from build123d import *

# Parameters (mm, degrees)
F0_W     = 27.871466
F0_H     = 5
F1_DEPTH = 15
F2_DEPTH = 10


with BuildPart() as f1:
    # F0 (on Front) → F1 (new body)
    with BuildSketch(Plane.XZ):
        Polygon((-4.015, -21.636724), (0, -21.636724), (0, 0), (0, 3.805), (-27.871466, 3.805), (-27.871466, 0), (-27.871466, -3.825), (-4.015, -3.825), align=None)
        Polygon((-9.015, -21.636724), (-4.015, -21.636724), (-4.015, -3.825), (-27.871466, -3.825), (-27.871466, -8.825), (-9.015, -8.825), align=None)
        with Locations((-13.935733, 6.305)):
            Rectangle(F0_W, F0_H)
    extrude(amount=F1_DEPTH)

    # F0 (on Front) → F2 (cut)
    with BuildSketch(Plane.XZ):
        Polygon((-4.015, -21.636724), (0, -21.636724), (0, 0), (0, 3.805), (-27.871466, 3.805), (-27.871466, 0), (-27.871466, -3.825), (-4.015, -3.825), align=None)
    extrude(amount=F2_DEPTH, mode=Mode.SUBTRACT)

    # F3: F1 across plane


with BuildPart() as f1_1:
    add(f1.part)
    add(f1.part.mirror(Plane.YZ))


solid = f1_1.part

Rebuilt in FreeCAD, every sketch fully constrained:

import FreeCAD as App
import Part
import Sketcher
from FreeCAD import Vector
Q = App.Units.Quantity

doc = App.newDocument("Part")
body = doc.addObject("PartDesign::Body", "Body")

sketch1 = body.newObject("Sketcher::SketchObject", "Sketch")
sketch1.AttachmentSupport = (doc.getObject("XZ_Plane"), [""])
sketch1.MapMode = "FlatFace"
sketch1.addGeometry(Part.LineSegment(Vector(0, -22, 0), Vector(0, 9, 0)), False)
sketch1.addGeometry(Part.LineSegment(Vector(0, 9, 0), Vector(-28, 9, 0)), False)
sketch1.addGeometry(Part.LineSegment(Vector(-28, 9, 0), Vector(-28, -9, 0)), False)
sketch1.addGeometry(Part.LineSegment(Vector(-28, -9, 0), Vector(-9, -9, 0)), False)
sketch1.addGeometry(Part.LineSegment(Vector(-9, -9, 0), Vector(-9, -22, 0)), False)
sketch1.addGeometry(Part.LineSegment(Vector(-9, -22, 0), Vector(0, -22, 0)), False)
sketch1.addConstraint(Sketcher.Constraint("Coincident", 0, 2, 1, 1))
sketch1.addConstraint(Sketcher.Constraint("Coincident", 1, 2, 2, 1))
sketch1.addConstraint(Sketcher.Constraint("Coincident", 2, 2, 3, 1))
sketch1.addConstraint(Sketcher.Constraint("Coincident", 3, 2, 4, 1))
sketch1.addConstraint(Sketcher.Constraint("Coincident", 4, 2, 5, 1))
sketch1.addConstraint(Sketcher.Constraint("Coincident", 5, 2, 0, 1))
sketch1.addConstraint(Sketcher.Constraint("Vertical", 0))
sketch1.addConstraint(Sketcher.Constraint("Horizontal", 1))
sketch1.addConstraint(Sketcher.Constraint("Vertical", 2))
sketch1.addConstraint(Sketcher.Constraint("Horizontal", 3))
sketch1.addConstraint(Sketcher.Constraint("Vertical", 4))
sketch1.addConstraint(Sketcher.Constraint("Horizontal", 5))
sketch1.addConstraint(Sketcher.Constraint("PointOnObject", 0, 2, -2))
sketch1.addConstraint(Sketcher.Constraint("DistanceY", 2, 2, 2, 1, Q("17.63 mm")))
sketch1.addConstraint(Sketcher.Constraint("DistanceX", 5, 1, 5, 2, Q("9.015 mm")))
sketch1.addConstraint(Sketcher.Constraint("DistanceY", -1, 1, 0, 2, Q("8.805 mm")))
sketch1.addConstraint(Sketcher.Constraint("DistanceX", 1, 2, 1, 1, Q("27.871466 mm")))
sketch1.addConstraint(Sketcher.Constraint("DistanceY", 0, 1, 0, 2, Q("30.441724 mm")))
pad1 = body.newObject("PartDesign::Pad", "Pad")
pad1.Profile = sketch1
pad1.Length = 15

sketch2 = body.newObject("Sketcher::SketchObject", "Sketch001")
sketch2.AttachmentSupport = (doc.getObject("XZ_Plane"), [""])
sketch2.MapMode = "FlatFace"
sketch2.addGeometry(Part.LineSegment(Vector(-4, -21.6, 0), Vector(0, -21.6, 0)), False)
sketch2.addGeometry(Part.LineSegment(Vector(0, -21.6, 0), Vector(0, 3.8, 0)), False)
sketch2.addGeometry(Part.LineSegment(Vector(0, 3.8, 0), Vector(-27.9, 3.8, 0)), False)
sketch2.addGeometry(Part.LineSegment(Vector(-27.9, 3.8, 0), Vector(-27.9, -3.8, 0)), False)
sketch2.addGeometry(Part.LineSegment(Vector(-27.9, -3.8, 0), Vector(-4, -3.8, 0)), False)
sketch2.addGeometry(Part.LineSegment(Vector(-4, -3.8, 0), Vector(-4, -21.6, 0)), False)
sketch2.addConstraint(Sketcher.Constraint("Coincident", 0, 2, 1, 1))
sketch2.addConstraint(Sketcher.Constraint("Coincident", 1, 2, 2, 1))
sketch2.addConstraint(Sketcher.Constraint("Coincident", 2, 2, 3, 1))
sketch2.addConstraint(Sketcher.Constraint("Coincident", 3, 2, 4, 1))
sketch2.addConstraint(Sketcher.Constraint("Coincident", 4, 2, 5, 1))
sketch2.addConstraint(Sketcher.Constraint("Coincident", 5, 2, 0, 1))
sketch2.addConstraint(Sketcher.Constraint("Horizontal", 0))
sketch2.addConstraint(Sketcher.Constraint("Vertical", 1))
sketch2.addConstraint(Sketcher.Constraint("Horizontal", 2))
sketch2.addConstraint(Sketcher.Constraint("Vertical", 3))
sketch2.addConstraint(Sketcher.Constraint("Horizontal", 4))
sketch2.addConstraint(Sketcher.Constraint("Vertical", 5))
sketch2.addConstraint(Sketcher.Constraint("PointOnObject", 0, 2, -2))
sketch2.addConstraint(Sketcher.Constraint("DistanceY", 3, 2, 3, 1, Q("7.63 mm")))
sketch2.addConstraint(Sketcher.Constraint("DistanceX", 0, 1, 0, 2, Q("4.015 mm")))
sketch2.addConstraint(Sketcher.Constraint("DistanceY", -1, 1, 1, 2, Q("3.805 mm")))
sketch2.addConstraint(Sketcher.Constraint("DistanceX", 2, 2, 2, 1, Q("27.871466 mm")))
sketch2.addConstraint(Sketcher.Constraint("DistanceY", 1, 1, 1, 2, Q("25.441724 mm")))
pocket1 = body.newObject("PartDesign::Pocket", "Pocket")
pocket1.Profile = sketch2
pocket1.Length = 10
pocket1.Reversed = True
body2 = doc.addObject("PartDesign::Body", "Body001")
doc.recompute()

body2.BaseFeature = body
doc.recompute()

mirroring = doc.addObject("Part::Mirroring", "Mirroring")
mirroring.Source = body
mirroring.Base = Vector(0, 0, 0)
mirroring.Normal = Vector(1, 0, 0)
body3 = doc.addObject("PartDesign::Body", "Body002")
body3.BaseFeature = mirroring
boolean = body2.newObject("PartDesign::Boolean", "Boolean")
boolean.Type = "Fuse"
boolean.addObjects([body3])
doc.recompute()
mirroring.Visibility = False

doc.recompute()
